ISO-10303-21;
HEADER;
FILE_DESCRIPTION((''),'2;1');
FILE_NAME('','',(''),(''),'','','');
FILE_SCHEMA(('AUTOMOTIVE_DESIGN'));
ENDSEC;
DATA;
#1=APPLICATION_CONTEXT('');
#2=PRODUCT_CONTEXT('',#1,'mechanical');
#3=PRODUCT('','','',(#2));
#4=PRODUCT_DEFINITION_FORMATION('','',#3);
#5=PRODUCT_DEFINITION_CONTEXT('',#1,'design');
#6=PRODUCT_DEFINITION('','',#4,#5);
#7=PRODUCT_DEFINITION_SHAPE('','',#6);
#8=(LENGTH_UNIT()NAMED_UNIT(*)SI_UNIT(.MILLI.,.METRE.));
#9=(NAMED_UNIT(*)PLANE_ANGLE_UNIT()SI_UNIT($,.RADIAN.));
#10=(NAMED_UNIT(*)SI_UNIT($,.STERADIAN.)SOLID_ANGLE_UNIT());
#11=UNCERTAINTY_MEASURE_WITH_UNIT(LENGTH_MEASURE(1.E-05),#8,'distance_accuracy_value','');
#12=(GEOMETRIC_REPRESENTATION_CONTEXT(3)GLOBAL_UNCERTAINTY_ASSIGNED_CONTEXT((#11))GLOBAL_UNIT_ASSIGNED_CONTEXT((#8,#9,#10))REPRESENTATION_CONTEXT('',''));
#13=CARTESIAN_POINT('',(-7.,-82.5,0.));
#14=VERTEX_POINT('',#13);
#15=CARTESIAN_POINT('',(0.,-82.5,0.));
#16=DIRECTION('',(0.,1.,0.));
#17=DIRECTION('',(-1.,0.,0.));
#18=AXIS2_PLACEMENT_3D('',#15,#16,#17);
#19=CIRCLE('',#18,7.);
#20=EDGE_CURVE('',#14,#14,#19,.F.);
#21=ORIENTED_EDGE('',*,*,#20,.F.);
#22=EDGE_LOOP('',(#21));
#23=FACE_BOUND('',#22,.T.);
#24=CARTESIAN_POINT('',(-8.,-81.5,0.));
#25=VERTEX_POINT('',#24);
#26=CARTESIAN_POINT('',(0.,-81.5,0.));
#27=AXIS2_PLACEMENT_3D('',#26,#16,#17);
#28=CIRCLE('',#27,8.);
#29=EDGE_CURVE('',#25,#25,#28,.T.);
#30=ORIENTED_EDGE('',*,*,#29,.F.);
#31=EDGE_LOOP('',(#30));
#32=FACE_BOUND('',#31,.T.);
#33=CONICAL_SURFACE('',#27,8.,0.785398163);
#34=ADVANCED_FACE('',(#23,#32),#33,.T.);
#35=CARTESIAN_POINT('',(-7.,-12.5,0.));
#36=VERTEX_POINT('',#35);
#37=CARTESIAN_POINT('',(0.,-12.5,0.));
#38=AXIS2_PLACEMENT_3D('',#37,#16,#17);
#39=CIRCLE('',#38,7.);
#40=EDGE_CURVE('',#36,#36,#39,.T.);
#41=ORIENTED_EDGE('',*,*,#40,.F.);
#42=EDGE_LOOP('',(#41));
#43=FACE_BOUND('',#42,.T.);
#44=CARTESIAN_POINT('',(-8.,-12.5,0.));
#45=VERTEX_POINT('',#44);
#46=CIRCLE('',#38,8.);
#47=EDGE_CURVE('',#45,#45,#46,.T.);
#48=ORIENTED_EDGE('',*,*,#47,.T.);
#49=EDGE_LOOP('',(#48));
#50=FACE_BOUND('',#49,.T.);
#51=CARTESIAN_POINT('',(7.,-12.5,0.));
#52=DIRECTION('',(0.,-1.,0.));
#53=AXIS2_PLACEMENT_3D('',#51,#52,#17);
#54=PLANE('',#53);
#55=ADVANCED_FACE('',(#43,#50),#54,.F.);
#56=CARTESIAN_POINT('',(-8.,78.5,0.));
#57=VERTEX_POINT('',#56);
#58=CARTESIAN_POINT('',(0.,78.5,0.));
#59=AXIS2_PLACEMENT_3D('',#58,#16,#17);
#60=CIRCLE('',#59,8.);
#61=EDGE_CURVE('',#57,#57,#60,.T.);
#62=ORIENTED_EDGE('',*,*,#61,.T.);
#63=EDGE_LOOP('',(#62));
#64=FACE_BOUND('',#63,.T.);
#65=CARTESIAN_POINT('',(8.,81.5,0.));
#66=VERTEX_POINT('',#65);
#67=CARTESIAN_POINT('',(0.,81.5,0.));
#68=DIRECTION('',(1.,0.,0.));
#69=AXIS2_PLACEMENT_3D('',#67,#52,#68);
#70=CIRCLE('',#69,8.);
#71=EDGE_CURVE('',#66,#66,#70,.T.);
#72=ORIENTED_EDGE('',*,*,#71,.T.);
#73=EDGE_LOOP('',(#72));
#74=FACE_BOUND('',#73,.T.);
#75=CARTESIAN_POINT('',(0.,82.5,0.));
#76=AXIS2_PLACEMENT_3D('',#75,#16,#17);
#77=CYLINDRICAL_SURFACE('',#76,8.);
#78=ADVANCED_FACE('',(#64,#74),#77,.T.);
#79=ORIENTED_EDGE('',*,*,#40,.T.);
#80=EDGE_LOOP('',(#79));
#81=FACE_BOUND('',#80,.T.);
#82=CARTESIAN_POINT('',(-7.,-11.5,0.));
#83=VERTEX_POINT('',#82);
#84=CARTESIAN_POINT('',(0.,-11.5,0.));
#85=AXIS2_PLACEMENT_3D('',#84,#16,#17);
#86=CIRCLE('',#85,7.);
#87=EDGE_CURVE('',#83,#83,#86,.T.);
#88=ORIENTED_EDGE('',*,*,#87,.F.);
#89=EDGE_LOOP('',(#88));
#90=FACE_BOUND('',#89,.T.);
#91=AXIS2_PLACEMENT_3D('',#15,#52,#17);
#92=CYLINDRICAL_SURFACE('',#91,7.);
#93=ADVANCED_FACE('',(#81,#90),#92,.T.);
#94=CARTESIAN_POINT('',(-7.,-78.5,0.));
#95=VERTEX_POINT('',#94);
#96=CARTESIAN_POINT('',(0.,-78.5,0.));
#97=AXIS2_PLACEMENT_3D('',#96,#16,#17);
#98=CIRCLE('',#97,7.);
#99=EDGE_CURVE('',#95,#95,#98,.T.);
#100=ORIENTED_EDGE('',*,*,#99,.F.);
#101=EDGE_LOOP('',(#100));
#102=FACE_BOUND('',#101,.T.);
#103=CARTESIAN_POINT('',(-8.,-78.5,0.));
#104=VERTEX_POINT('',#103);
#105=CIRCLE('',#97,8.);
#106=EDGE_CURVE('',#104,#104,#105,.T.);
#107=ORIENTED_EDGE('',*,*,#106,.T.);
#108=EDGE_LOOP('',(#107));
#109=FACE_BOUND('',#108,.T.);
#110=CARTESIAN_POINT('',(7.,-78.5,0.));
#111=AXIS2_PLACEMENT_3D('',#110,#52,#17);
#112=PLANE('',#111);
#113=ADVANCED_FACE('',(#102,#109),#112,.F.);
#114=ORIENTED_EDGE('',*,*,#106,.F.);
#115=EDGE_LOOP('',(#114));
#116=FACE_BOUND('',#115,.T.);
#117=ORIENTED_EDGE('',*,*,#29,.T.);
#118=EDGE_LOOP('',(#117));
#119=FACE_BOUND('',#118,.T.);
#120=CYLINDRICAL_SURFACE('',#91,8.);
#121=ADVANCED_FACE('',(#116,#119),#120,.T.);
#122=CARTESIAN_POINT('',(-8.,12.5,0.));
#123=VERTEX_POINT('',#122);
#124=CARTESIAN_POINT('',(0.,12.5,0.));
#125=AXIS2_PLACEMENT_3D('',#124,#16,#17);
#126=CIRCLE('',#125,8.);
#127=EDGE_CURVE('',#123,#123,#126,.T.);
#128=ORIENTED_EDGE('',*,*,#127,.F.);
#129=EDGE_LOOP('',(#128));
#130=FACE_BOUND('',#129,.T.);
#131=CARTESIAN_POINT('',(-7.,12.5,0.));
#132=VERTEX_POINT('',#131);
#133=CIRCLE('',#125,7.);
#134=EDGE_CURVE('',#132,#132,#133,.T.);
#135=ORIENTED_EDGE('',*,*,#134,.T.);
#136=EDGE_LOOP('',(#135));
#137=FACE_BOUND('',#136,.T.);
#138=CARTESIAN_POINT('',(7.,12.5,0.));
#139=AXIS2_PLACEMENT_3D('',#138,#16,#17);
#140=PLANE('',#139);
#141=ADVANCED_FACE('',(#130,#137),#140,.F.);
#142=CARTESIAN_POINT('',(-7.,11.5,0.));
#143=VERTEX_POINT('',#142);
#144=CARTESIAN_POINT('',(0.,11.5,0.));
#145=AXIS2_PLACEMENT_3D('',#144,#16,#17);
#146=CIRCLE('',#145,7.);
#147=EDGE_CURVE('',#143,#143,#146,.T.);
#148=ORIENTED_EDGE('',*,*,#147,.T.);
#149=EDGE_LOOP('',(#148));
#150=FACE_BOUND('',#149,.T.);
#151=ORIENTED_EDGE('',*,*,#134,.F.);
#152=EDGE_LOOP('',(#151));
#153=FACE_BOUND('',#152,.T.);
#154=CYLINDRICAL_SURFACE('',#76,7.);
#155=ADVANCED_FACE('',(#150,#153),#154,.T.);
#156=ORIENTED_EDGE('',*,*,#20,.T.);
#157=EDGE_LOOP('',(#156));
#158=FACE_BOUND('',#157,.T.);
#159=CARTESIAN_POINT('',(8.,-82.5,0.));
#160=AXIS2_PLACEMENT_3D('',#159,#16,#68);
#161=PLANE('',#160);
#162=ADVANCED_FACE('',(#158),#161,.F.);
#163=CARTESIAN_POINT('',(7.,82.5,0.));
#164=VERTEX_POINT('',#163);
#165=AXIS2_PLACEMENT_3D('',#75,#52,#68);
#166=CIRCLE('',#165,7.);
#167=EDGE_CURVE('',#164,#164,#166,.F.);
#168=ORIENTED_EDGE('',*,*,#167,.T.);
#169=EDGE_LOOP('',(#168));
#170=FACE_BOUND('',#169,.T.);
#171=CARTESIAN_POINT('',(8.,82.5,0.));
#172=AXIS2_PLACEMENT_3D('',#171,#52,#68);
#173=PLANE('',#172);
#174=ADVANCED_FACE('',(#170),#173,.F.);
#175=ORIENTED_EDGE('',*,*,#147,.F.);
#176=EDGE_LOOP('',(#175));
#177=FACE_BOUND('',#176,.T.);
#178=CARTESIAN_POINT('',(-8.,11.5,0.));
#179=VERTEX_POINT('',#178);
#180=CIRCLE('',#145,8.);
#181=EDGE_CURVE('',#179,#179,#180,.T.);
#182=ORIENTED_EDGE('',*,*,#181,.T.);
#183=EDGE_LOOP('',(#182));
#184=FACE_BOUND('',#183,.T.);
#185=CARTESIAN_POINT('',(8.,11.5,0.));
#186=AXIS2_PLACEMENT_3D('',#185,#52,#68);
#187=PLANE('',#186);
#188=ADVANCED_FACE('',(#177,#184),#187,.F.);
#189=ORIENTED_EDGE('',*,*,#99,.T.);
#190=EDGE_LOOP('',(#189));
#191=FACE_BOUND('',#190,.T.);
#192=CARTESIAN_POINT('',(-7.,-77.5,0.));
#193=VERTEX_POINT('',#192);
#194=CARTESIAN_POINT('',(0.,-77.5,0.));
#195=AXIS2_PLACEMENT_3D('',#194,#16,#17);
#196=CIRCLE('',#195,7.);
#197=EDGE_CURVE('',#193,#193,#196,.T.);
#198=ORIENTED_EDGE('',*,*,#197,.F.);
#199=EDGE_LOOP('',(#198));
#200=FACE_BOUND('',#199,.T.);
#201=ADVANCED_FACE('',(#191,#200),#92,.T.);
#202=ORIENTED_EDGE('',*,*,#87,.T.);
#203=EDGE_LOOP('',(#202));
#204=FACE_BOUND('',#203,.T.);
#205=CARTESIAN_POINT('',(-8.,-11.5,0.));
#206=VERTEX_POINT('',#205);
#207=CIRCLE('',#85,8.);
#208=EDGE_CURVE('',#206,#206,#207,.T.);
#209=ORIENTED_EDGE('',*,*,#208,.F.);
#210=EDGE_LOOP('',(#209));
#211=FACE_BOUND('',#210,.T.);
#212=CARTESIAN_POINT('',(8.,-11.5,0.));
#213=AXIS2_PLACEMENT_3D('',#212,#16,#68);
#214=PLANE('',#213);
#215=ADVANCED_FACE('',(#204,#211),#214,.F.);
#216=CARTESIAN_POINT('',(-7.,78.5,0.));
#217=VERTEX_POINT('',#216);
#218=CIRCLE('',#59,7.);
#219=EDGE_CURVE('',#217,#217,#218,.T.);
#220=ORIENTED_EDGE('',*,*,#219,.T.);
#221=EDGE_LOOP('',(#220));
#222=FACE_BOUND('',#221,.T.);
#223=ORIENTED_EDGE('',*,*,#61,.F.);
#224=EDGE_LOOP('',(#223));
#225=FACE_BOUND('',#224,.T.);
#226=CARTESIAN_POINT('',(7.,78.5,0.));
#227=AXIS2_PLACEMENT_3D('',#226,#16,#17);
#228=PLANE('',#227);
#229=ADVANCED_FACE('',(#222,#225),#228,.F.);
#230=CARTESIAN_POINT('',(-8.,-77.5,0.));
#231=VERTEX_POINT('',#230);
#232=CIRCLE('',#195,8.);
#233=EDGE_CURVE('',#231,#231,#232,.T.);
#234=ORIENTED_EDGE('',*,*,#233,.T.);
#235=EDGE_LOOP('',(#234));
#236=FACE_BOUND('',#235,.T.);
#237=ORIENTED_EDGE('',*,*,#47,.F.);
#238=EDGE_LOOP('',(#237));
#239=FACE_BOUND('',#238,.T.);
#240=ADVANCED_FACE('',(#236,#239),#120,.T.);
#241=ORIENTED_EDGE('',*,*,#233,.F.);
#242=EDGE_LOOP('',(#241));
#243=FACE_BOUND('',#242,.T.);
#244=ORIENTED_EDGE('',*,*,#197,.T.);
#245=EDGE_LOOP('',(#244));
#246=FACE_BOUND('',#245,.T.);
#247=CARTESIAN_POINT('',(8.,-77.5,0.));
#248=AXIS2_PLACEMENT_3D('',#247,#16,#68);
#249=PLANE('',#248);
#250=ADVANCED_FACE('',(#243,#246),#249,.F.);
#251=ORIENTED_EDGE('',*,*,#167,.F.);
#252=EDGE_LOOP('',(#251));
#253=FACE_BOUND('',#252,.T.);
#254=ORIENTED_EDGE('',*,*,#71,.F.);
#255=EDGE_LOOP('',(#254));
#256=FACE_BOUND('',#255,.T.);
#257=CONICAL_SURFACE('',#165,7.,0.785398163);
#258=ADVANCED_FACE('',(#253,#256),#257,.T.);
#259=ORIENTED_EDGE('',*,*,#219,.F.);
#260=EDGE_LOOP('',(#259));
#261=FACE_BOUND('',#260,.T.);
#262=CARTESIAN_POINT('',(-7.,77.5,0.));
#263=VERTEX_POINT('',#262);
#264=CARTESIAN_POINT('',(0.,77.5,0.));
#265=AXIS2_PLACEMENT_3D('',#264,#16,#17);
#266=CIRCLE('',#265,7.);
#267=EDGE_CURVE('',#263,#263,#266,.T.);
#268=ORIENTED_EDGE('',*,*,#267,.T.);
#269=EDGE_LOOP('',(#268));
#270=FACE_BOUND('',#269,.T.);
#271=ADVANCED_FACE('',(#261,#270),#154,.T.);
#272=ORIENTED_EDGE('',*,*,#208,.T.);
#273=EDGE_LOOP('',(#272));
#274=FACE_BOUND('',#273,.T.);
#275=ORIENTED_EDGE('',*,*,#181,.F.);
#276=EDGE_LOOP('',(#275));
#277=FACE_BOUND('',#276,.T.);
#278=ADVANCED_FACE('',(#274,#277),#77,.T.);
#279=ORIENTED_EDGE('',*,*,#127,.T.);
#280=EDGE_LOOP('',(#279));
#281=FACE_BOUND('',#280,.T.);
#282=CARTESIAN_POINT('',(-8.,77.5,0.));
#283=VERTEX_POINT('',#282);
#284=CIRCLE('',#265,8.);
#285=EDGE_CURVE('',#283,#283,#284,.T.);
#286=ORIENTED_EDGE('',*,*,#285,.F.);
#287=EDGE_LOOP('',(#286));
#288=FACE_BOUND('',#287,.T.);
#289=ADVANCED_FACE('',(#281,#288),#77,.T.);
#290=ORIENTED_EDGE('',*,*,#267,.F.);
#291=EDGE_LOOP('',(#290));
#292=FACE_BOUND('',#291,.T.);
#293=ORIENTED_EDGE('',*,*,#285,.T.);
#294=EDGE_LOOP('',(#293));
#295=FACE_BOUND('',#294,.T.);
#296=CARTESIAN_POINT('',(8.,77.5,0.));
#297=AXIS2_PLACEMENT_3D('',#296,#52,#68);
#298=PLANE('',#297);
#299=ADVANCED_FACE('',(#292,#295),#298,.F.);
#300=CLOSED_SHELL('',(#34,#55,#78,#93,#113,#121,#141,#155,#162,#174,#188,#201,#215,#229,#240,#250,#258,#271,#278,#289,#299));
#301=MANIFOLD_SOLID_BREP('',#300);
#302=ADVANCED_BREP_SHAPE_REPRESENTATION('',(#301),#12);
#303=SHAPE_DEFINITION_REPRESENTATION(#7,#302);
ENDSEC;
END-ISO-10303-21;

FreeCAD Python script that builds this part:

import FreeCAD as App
import Part
import Sketcher

V = App.Vector
Q = App.Units.Quantity


def edges_at(feature, points):
    """Names of the edges that pass closest to the given points."""
    edges = feature.Shape.Edges
    near = lambda p: min(range(len(edges)), key=lambda i: edges[i].distToShape(Part.Vertex(*p))[0])
    return sorted({f"Edge{near(p) + 1}" for p in points})


def add_polygon(sketch, points):
    """Adds a closed chain of lines whose ends are joined by coincident constraints."""
    first, n = sketch.GeometryCount, len(points)
    for a, b in zip(points, points[1:] + points[:1]):
        sketch.addGeometry(Part.LineSegment(App.Vector(*a, 0), App.Vector(*b, 0)), False)
    for i in range(n):
        sketch.addConstraint(Sketcher.Constraint("Coincident", first + i, 2, first + (i + 1) % n, 1))

doc = App.newDocument("Part")
body = doc.addObject("PartDesign::Body", "Body")

sketch1 = body.newObject("Sketcher::SketchObject", "Sketch")
sketch1.AttachmentSupport = (doc.getObject("XY_Plane"), [""])
sketch1.MapMode = "FlatFace"
add_polygon(sketch1, [(0, 0), (8, 0), (8, 11.5), (7, 11.5), (7, 12.5), (8, 12.5), (8, 77.5), (7, 77.5), (7, 78.5), (8, 78.5), (8, 82.5), (0, 82.5)])
sketch1.addConstraint([
    Sketcher.Constraint("Horizontal", 0),
    Sketcher.Constraint("Vertical", 1),
    Sketcher.Constraint("Horizontal", 2),
    Sketcher.Constraint("Vertical", 3),
    Sketcher.Constraint("Horizontal", 4),
    Sketcher.Constraint("Vertical", 5),
    Sketcher.Constraint("Horizontal", 6),
    Sketcher.Constraint("Vertical", 7),
    Sketcher.Constraint("Horizontal", 8),
    Sketcher.Constraint("Vertical", 9),
    Sketcher.Constraint("Horizontal", 10),
    Sketcher.Constraint("Vertical", 11),
    Sketcher.Constraint("Coincident", 11, 2, -1, 1),
    Sketcher.Constraint("Vertical", 1, 2, 4, 2),
    Sketcher.Constraint("Vertical", 3, 2, 6, 2),
    Sketcher.Constraint("Vertical", 5, 2, 8, 2),
    Sketcher.Constraint("Equal", 8, 3),
    Sketcher.Constraint("Equal", 3, 7),
    Sketcher.Constraint("DistanceX", 0, 1, 0, 2, Q("8 mm")),
    Sketcher.Constraint("DistanceX", 2, 2, 2, 1, Q("1 mm")),
    Sketcher.Constraint("DistanceY", 5, 1, 5, 2, Q("65 mm")),
    Sketcher.Constraint("DistanceY", 9, 1, 9, 2, Q("4 mm")),
    Sketcher.Constraint("DistanceY", 1, 1, 1, 2, Q("11.5 mm")),
])
revolution = body.newObject("PartDesign::Revolution", "Revolution")
revolution.Profile = sketch1
revolution.ReferenceAxis = (sketch1, ["V_Axis"])
revolution.Angle = 360
doc.recompute()

mirrored = body.newObject("PartDesign::Mirrored", "Mirrored")
mirrored.Originals = [revolution]
mirrored.MirrorPlane = (doc.getObject("XZ_Plane"), [""])
body.Tip = mirrored
doc.recompute()

chamfer = body.newObject("PartDesign::Chamfer", "Chamfer")
chamfer.Base = (mirrored, edges_at(mirrored, [(8, -82.5, 0), (8, 82.5, 0)]))
chamfer.Size = 1

doc.recompute()
